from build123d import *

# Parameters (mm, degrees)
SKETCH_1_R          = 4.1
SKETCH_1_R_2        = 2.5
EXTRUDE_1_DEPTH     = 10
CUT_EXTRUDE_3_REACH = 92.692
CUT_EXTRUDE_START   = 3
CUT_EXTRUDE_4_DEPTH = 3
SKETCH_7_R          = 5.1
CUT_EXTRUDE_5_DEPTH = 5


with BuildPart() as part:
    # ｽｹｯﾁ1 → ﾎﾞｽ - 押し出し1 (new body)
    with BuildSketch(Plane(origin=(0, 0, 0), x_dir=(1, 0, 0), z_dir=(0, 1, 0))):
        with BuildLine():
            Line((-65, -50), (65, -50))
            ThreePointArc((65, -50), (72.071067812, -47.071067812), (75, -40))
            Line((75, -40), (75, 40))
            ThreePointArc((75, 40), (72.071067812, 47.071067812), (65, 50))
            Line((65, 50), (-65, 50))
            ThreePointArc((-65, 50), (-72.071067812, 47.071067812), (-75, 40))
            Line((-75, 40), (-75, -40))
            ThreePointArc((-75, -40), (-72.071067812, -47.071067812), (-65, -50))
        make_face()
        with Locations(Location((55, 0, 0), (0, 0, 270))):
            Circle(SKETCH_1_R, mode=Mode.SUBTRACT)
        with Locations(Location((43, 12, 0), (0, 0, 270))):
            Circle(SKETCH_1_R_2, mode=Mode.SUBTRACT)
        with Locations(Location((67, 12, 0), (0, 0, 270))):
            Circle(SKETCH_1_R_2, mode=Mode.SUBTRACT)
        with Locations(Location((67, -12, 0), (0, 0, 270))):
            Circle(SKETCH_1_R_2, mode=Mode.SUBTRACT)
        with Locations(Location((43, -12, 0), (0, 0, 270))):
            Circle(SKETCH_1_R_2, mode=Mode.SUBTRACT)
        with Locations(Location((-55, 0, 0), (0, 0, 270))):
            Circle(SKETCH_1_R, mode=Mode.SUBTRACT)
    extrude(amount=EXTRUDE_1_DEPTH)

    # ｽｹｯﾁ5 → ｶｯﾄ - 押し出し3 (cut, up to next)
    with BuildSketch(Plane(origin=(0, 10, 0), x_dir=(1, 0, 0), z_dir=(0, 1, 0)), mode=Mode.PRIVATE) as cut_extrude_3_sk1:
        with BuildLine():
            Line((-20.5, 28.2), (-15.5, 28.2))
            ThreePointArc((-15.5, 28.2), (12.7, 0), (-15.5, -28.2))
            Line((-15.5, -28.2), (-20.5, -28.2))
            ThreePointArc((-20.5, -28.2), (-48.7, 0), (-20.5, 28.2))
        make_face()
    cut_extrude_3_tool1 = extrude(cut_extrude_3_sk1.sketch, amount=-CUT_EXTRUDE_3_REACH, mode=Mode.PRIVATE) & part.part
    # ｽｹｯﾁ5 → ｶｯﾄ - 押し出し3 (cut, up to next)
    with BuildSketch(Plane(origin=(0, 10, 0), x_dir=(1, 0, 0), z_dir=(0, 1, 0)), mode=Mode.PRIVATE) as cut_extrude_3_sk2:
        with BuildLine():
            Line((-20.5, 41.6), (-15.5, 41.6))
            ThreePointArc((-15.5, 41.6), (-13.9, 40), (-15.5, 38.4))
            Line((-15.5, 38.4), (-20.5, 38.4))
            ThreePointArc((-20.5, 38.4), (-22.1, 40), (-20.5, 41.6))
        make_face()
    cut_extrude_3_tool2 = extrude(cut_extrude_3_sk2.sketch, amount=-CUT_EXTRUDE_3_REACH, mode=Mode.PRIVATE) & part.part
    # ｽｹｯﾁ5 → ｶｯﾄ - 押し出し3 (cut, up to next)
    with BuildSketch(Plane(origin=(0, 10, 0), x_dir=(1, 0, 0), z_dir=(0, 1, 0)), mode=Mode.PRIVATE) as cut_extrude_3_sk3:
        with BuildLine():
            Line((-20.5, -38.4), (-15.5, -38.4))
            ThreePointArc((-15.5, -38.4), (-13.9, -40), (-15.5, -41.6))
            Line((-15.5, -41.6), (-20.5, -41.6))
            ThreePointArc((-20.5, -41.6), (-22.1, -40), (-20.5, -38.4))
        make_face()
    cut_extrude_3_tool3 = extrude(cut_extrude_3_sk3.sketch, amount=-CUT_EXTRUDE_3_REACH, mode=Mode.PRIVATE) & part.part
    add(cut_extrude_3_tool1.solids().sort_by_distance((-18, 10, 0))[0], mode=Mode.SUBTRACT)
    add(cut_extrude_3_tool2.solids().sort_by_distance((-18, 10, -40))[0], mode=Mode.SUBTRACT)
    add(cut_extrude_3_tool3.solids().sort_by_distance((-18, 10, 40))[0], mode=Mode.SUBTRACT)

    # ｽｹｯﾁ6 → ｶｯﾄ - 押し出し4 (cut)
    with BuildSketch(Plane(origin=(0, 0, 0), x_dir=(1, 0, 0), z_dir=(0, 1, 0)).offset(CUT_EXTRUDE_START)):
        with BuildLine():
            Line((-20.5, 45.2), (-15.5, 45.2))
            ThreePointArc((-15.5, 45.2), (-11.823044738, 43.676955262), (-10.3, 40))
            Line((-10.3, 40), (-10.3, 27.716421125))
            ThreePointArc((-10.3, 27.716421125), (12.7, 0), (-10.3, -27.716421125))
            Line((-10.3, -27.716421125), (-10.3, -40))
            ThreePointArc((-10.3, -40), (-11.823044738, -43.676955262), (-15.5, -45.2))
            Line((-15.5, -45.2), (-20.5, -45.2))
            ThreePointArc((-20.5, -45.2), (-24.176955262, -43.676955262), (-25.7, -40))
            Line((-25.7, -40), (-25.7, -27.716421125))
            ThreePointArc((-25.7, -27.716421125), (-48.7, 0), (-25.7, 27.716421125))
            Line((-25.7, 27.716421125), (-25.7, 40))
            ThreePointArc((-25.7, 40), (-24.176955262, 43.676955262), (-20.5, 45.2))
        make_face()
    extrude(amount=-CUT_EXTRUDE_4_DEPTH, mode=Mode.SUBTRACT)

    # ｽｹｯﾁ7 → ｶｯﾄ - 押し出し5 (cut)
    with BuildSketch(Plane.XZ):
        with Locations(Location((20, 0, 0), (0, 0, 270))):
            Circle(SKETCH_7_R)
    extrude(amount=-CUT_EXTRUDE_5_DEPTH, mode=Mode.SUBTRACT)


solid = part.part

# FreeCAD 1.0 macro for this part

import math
import FreeCAD as App
import Part
import Sketcher
Q = App.Units.Quantity

doc = App.newDocument("Part")
params = doc.addObject("Spreadsheet::Sheet", "Params")
for row, (alias, value) in enumerate([
    ("sketch1_diameter", "5 mm"),
    ("sketch1_radius", "10 mm"),
    ("sketch1_diameter2", "8.2 mm"),
    ("sketch1_width", "130 mm"),
    ("sketch1_height", "80 mm"),
    ("pad1_length", "10 mm"),
    ("sketch2_radius", "28.2 mm"),
    ("sketch2_width", "5 mm"),
    ("sketch3_radius", "1.6 mm"),
    ("sketch3_width", "5 mm"),
    ("sketch4_radius", "1.6 mm"),
    ("sketch4_width", "5 mm"),
    ("sketch5_radius", "5.2 mm"),
    ("sketch5_radius2", "28.2 mm"),
    ("sketch5_width", "5 mm"),
    ("pocket4_length", "3 mm"),
    ("sketch6_diameter", "10.2 mm"),
    ("pocket5_length", "5 mm"),
], start=1):
    params.set(f"A{row}", alias)
    params.set(f"B{row}", "=" + value)
    params.setAlias(f"B{row}", alias)

body = doc.addObject("PartDesign::Body", "Body")

# Sketch on XZ plane
sketch1 = doc.addObject("Sketcher::SketchObject", "Sketch")
body.addObject(sketch1)
sketch1.AttachmentSupport = (doc.XZ_Plane, [""])
sketch1.MapMode = "FlatFace"
sketch1.addGeometry([
    Part.LineSegment(App.Vector(-65, 50, 0), App.Vector(65, 50, 0)),  # 0
    Part.ArcOfCircle(Part.Circle(App.Vector(65, 40, 0), App.Vector(0, 0, 1), 10), math.radians(0), math.radians(90)),  # 1
    Part.LineSegment(App.Vector(75, 40, 0), App.Vector(75, -40, 0)),  # 2
    Part.ArcOfCircle(Part.Circle(App.Vector(65, -40, 0), App.Vector(0, 0, 1), 10), math.radians(-90), math.radians(0)),  # 3
    Part.LineSegment(App.Vector(65, -50, 0), App.Vector(-65, -50, 0)),  # 4
    Part.ArcOfCircle(Part.Circle(App.Vector(-65, -40, 0), App.Vector(0, 0, 1), 10), math.radians(180), math.radians(270)),  # 5
    Part.LineSegment(App.Vector(-75, -40, 0), App.Vector(-75, 40, 0)),  # 6
    Part.ArcOfCircle(Part.Circle(App.Vector(-65, 40, 0), App.Vector(0, 0, 1), 10), math.radians(90), math.radians(180)),  # 7
    Part.Circle(App.Vector(43, 12, 0), App.Vector(0, 0, 1), 2.5),  # 8
    Part.Circle(App.Vector(67, 12, 0), App.Vector(0, 0, 1), 2.5),  # 9
    Part.Circle(App.Vector(-55, 0, 0), App.Vector(0, 0, 1), 4.1),  # 10
    Part.Circle(App.Vector(55, 0, 0), App.Vector(0, 0, 1), 4.1),  # 11
    Part.Circle(App.Vector(43, -12, 0), App.Vector(0, 0, 1), 2.5),  # 12
    Part.Circle(App.Vector(67, -12, 0), App.Vector(0, 0, 1), 2.5),  # 13
], False)
sketch1.addConstraint([
    Sketcher.Constraint("Tangent", 0, 2, 1, 2),
    Sketcher.Constraint("Tangent", 1, 1, 2, 1),
    Sketcher.Constraint("Tangent", 2, 2, 3, 2),
    Sketcher.Constraint("Tangent", 3, 1, 4, 1),
    Sketcher.Constraint("Tangent", 4, 2, 5, 2),
    Sketcher.Constraint("Tangent", 5, 1, 6, 1),
    Sketcher.Constraint("Tangent", 6, 2, 7, 2),
    Sketcher.Constraint("Tangent", 7, 1, 0, 1),
    Sketcher.Constraint("Horizontal", 0),
    Sketcher.Constraint("Vertical", 2),
    Sketcher.Constraint("Horizontal", 4),
    Sketcher.Constraint("Vertical", 6),
    Sketcher.Constraint("Equal", 1, 3),
    Sketcher.Constraint("Equal", 3, 5),
    Sketcher.Constraint("Equal", 5, 7),
    Sketcher.Constraint("Equal", 8, 9),
    Sketcher.Constraint("Equal", 10, 11),
    Sketcher.Constraint("Equal", 9, 12),
    Sketcher.Constraint("Equal", 12, 13),
    Sketcher.Constraint("Symmetric", 1, 3, 5, 3, -1, 1),
    Sketcher.Constraint("Symmetric", 10, 3, 11, 3, -1, 1),
    Sketcher.Constraint("Symmetric", 8, 3, 12, 3, -1),
    Sketcher.Constraint("Symmetric", 9, 3, 13, 3, -1),
    Sketcher.Constraint("PointOnObject", 10, 3, -1),
    Sketcher.Constraint("Horizontal", 8, 3, 9, 3),
    Sketcher.Constraint("Diameter", 8, Q("5 mm")),
    Sketcher.Constraint("Radius", 1, Q("10 mm")),
    Sketcher.Constraint("Diameter", 10, Q("8.2 mm")),
    Sketcher.Constraint("DistanceX", 0, 1, 0, 2, Q("130 mm")),
    Sketcher.Constraint("DistanceY", 2, 2, 2, 1, Q("80 mm")),
    Sketcher.Constraint("DistanceX", -1, 1, 8, 3, Q("43 mm")),
    Sketcher.Constraint("DistanceY", -1, 1, 8, 3, Q("12 mm")),
    Sketcher.Constraint("DistanceX", -1, 1, 9, 3, Q("67 mm")),
    Sketcher.Constraint("DistanceX", 10, 3, -1, 1, Q("55 mm")),
])
sketch1.setExpression("Constraints[25]", "Params.sketch1_diameter")
sketch1.setExpression("Constraints[26]", "Params.sketch1_radius")
sketch1.setExpression("Constraints[27]", "Params.sketch1_diameter2")
sketch1.setExpression("Constraints[28]", "Params.sketch1_width")
sketch1.setExpression("Constraints[29]", "Params.sketch1_height")
pad1 = doc.addObject("PartDesign::Pad", "Pad")
body.addObject(pad1)
pad1.Profile = sketch1
pad1.setExpression("Length", "Params.pad1_length")
pad1.Reversed = True

# Sketch on XZ plane
sketch2 = doc.addObject("Sketcher::SketchObject", "Sketch001")
body.addObject(sketch2)
sketch2.AttachmentSupport = (doc.XZ_Plane, [""])
sketch2.MapMode = "FlatFace"
sketch2.AttachmentOffset = App.Placement(App.Vector(0, 0, -10), App.Rotation())
sketch2.addGeometry([
    Part.LineSegment(App.Vector(-16, -28, 0), App.Vector(-20, -28, 0)),
    Part.ArcOfCircle(Part.Circle(App.Vector(-20, 0, 0), App.Vector(0, 0, 1), 28), math.radians(90), math.radians(270)),
    Part.LineSegment(App.Vector(-20, 28, 0), App.Vector(-16, 28, 0)),
    Part.ArcOfCircle(Part.Circle(App.Vector(-16, 0, 0), App.Vector(0, 0, 1), 28), math.radians(-90), math.radians(90)),
], False)
sketch2.addConstraint([
    Sketcher.Constraint("Tangent", 0, 2, 1, 2),
    Sketcher.Constraint("Tangent", 1, 1, 2, 1),
    Sketcher.Constraint("Tangent", 2, 2, 3, 2),
    Sketcher.Constraint("Tangent", 3, 1, 0, 1),
    Sketcher.Constraint("Horizontal", 0),
    Sketcher.Constraint("Horizontal", 2),
    Sketcher.Constraint("PointOnObject", 1, 3, -1),
    Sketcher.Constraint("Radius", 1, Q("28.2 mm")),
    Sketcher.Constraint("DistanceX", 0, 2, 0, 1, Q("5 mm")),
    Sketcher.Constraint("DistanceX", 1, 3, -1, 1, Q("20.5 mm")),
])
sketch2.setExpression("Constraints[7]", "Params.sketch2_radius")
sketch2.setExpression("Constraints[8]", "Params.sketch2_width")
pocket1 = doc.addObject("PartDesign::Pocket", "Pocket")
body.addObject(pocket1)
pocket1.Profile = sketch2
pocket1.Type = "UpToFirst"
pocket1.Reversed = True

# Sketch on XZ plane
sketch3 = doc.addObject("Sketcher::SketchObject", "Sketch002")
body.addObject(sketch3)
sketch3.AttachmentSupport = (doc.XZ_Plane, [""])
sketch3.MapMode = "FlatFace"
sketch3.AttachmentOffset = App.Placement(App.Vector(0, 0, -10), App.Rotation())
sketch3.addGeometry([
    Part.LineSegment(App.Vector(-15.5, -41.6, 0), App.Vector(-20.5, -41.6, 0)),
    Part.ArcOfCircle(Part.Circle(App.Vector(-20.5, -40, 0), App.Vector(0, 0, 1), 1.6), math.radians(90), math.radians(270)),
    Part.LineSegment(App.Vector(-20.5, -38.4, 0), App.Vector(-15.5, -38.4, 0)),
    Part.ArcOfCircle(Part.Circle(App.Vector(-15.5, -40, 0), App.Vector(0, 0, 1), 1.6), math.radians(-90), math.radians(90)),
], False)
sketch3.addConstraint([
    Sketcher.Constraint("Tangent", 0, 2, 1, 2),
    Sketcher.Constraint("Tangent", 1, 1, 2, 1),
    Sketcher.Constraint("Tangent", 2, 2, 3, 2),
    Sketcher.Constraint("Tangent", 3, 1, 0, 1),
    Sketcher.Constraint("Horizontal", 0),
    Sketcher.Constraint("Horizontal", 2),
    Sketcher.Constraint("Radius", 1, Q("1.6 mm")),
    Sketcher.Constraint("DistanceX", 0, 2, 0, 1, Q("5 mm")),
    Sketcher.Constraint("DistanceY", 1, 3, -1, 1, Q("40 mm")),
    Sketcher.Constraint("DistanceX", 1, 3, -1, 1, Q("20.5 mm")),
])
sketch3.setExpression("Constraints[6]", "Params.sketch3_radius")
sketch3.setExpression("Constraints[7]", "Params.sketch3_width")
pocket2 = doc.addObject("PartDesign::Pocket", "Pocket001")
body.addObject(pocket2)
pocket2.Profile = sketch3
pocket2.Type = "UpToFirst"
pocket2.Reversed = True

# Sketch on XZ plane
sketch4 = doc.addObject("Sketcher::SketchObject", "Sketch003")
body.addObject(sketch4)
sketch4.AttachmentSupport = (doc.XZ_Plane, [""])
sketch4.MapMode = "FlatFace"
sketch4.AttachmentOffset = App.Placement(App.Vector(0, 0, -10), App.Rotation())
sketch4.addGeometry([
    Part.LineSegment(App.Vector(-15.5, 38.4, 0), App.Vector(-20.5, 38.4, 0)),
    Part.ArcOfCircle(Part.Circle(App.Vector(-20.5, 40, 0), App.Vector(0, 0, 1), 1.6), math.radians(90), math.radians(270)),
    Part.LineSegment(App.Vector(-20.5, 41.6, 0), App.Vector(-15.5, 41.6, 0)),
    Part.ArcOfCircle(Part.Circle(App.Vector(-15.5, 40, 0), App.Vector(0, 0, 1), 1.6), math.radians(-90), math.radians(90)),
], False)
sketch4.addConstraint([
    Sketcher.Constraint("Tangent", 0, 2, 1, 2),
    Sketcher.Constraint("Tangent", 1, 1, 2, 1),
    Sketcher.Constraint("Tangent", 2, 2, 3, 2),
    Sketcher.Constraint("Tangent", 3, 1, 0, 1),
    Sketcher.Constraint("Horizontal", 0),
    Sketcher.Constraint("Horizontal", 2),
    Sketcher.Constraint("Radius", 1, Q("1.6 mm")),
    Sketcher.Constraint("DistanceX", 0, 2, 0, 1, Q("5 mm")),
    Sketcher.Constraint("DistanceY", -1, 1, 1, 3, Q("40 mm")),
    Sketcher.Constraint("DistanceX", 1, 3, -1, 1, Q("20.5 mm")),
])
sketch4.setExpression("Constraints[6]", "Params.sketch4_radius")
sketch4.setExpression("Constraints[7]", "Params.sketch4_width")
pocket3 = doc.addObject("PartDesign::Pocket", "Pocket002")
body.addObject(pocket3)
pocket3.Profile = sketch4
pocket3.Type = "UpToFirst"
pocket3.Reversed = True

# Sketch on XZ plane
sketch5 = doc.addObject("Sketcher::SketchObject", "Sketch004")
body.addObject(sketch5)
sketch5.AttachmentSupport = (doc.XZ_Plane, [""])
sketch5.MapMode = "FlatFace"
sketch5.AttachmentOffset = App.Placement(App.Vector(0, 0, -3), App.Rotation())
sketch5.addGeometry([
    Part.LineSegment(App.Vector(-16, -45, 0), App.Vector(-20, -45, 0)),  # 0
    Part.ArcOfCircle(Part.Circle(App.Vector(-20, -40, 0), App.Vector(0, 0, 1), 5), math.radians(-180), math.radians(-90)),  # 1
    Part.LineSegment(App.Vector(-26, -40, 0), App.Vector(-26, -28, 0)),  # 2
    Part.ArcOfCircle(Part.Circle(App.Vector(-20, 0, 0), App.Vector(0, 0, 1), 28), math.radians(101), math.radians(259)),  # 3
    Part.LineSegment(App.Vector(-26, 28, 0), App.Vector(-26, 40, 0)),  # 4
    Part.ArcOfCircle(Part.Circle(App.Vector(-20, 40, 0), App.Vector(0, 0, 1), 5), math.radians(90), math.radians(180)),  # 5
    Part.LineSegment(App.Vector(-20, 45, 0), App.Vector(-16, 45, 0)),  # 6
    Part.ArcOfCircle(Part.Circle(App.Vector(-16, 40, 0), App.Vector(0, 0, 1), 5), math.radians(0), math.radians(90)),  # 7
    Part.LineSegment(App.Vector(-10, 40, 0), App.Vector(-10, 28, 0)),  # 8
    Part.ArcOfCircle(Part.Circle(App.Vector(-16, 0, 0), App.Vector(0, 0, 1), 28), math.radians(-79), math.radians(79)),  # 9
    Part.LineSegment(App.Vector(-10, -28, 0), App.Vector(-10, -40, 0)),  # 10
    Part.ArcOfCircle(Part.Circle(App.Vector(-16, -40, 0), App.Vector(0, 0, 1), 5), math.radians(-90), math.radians(0)),  # 11
], False)
sketch5.addConstraint([
    Sketcher.Constraint("Tangent", 0, 2, 1, 2),
    Sketcher.Constraint("Tangent", 1, 1, 2, 1),
    Sketcher.Constraint("Coincident", 2, 2, 3, 2),
    Sketcher.Constraint("Coincident", 3, 1, 4, 1),
    Sketcher.Constraint("Tangent", 4, 2, 5, 2),
    Sketcher.Constraint("Tangent", 5, 1, 6, 1),
    Sketcher.Constraint("Tangent", 6, 2, 7, 2),
    Sketcher.Constraint("Tangent", 7, 1, 8, 1),
    Sketcher.Constraint("Coincident", 8, 2, 9, 2),
    Sketcher.Constraint("Coincident", 9, 1, 10, 1),
    Sketcher.Constraint("Tangent", 10, 2, 11, 2),
    Sketcher.Constraint("Tangent", 11, 1, 0, 1),
    Sketcher.Constraint("Horizontal", 0),
    Sketcher.Constraint("Vertical", 2),
    Sketcher.Constraint("Vertical", 4),
    Sketcher.Constraint("Horizontal", 6),
    Sketcher.Constraint("Vertical", 8),
    Sketcher.Constraint("Vertical", 10),
    Sketcher.Constraint("Equal", 1, 5),
    Sketcher.Constraint("Equal", 5, 7),
    Sketcher.Constraint("Equal", 3, 9),
    Sketcher.Constraint("Equal", 7, 11),
    Sketcher.Constraint("Symmetric", 1, 3, 5, 3, -1),
    Sketcher.Constraint("Symmetric", 8, 2, 9, 1, -1),
    Sketcher.Constraint("PointOnObject", 3, 3, -1),
    Sketcher.Constraint("Horizontal", 3, 1, 8, 2),
    Sketcher.Constraint("Vertical", 1, 3, 3, 3),
    Sketcher.Constraint("Radius", 1, Q("5.2 mm")),
    Sketcher.Constraint("Radius", 3, Q("28.2 mm")),
    Sketcher.Constraint("DistanceX", 0, 2, 0, 1, Q("5 mm")),
    Sketcher.Constraint("DistanceY", 1, 3, -1, 1, Q("40 mm")),
    Sketcher.Constraint("DistanceX", 1, 3, -1, 1, Q("20.5 mm")),
])
sketch5.setExpression("Constraints[27]", "Params.sketch5_radius")
sketch5.setExpression("Constraints[28]", "Params.sketch5_radius2")
sketch5.setExpression("Constraints[29]", "Params.sketch5_width")
pocket4 = doc.addObject("PartDesign::Pocket", "Pocket003")
body.addObject(pocket4)
pocket4.Profile = sketch5
pocket4.setExpression("Length", "Params.pocket4_length")
pocket4.Reversed = True

# Sketch on XZ plane
sketch6 = doc.addObject("Sketcher::SketchObject", "Sketch005")
body.addObject(sketch6)
sketch6.AttachmentSupport = (doc.XZ_Plane, [""])
sketch6.MapMode = "FlatFace"
sketch6.addGeometry(Part.Circle(App.Vector(20, 0, 0), App.Vector(0, 0, 1), 5), False)
sketch6.addConstraint([
    Sketcher.Constraint("PointOnObject", 0, 3, -1),
    Sketcher.Constraint("Diameter", 0, Q("10.2 mm")),
    Sketcher.Constraint("DistanceX", -1, 1, 0, 3, Q("20 mm")),
])
sketch6.setExpression("Constraints[1]", "Params.sketch6_diameter")
pocket5 = doc.addObject("PartDesign::Pocket", "Pocket004")
body.addObject(pocket5)
pocket5.Profile = sketch6
pocket5.setExpression("Length", "Params.pocket5_length")

doc.recompute()
